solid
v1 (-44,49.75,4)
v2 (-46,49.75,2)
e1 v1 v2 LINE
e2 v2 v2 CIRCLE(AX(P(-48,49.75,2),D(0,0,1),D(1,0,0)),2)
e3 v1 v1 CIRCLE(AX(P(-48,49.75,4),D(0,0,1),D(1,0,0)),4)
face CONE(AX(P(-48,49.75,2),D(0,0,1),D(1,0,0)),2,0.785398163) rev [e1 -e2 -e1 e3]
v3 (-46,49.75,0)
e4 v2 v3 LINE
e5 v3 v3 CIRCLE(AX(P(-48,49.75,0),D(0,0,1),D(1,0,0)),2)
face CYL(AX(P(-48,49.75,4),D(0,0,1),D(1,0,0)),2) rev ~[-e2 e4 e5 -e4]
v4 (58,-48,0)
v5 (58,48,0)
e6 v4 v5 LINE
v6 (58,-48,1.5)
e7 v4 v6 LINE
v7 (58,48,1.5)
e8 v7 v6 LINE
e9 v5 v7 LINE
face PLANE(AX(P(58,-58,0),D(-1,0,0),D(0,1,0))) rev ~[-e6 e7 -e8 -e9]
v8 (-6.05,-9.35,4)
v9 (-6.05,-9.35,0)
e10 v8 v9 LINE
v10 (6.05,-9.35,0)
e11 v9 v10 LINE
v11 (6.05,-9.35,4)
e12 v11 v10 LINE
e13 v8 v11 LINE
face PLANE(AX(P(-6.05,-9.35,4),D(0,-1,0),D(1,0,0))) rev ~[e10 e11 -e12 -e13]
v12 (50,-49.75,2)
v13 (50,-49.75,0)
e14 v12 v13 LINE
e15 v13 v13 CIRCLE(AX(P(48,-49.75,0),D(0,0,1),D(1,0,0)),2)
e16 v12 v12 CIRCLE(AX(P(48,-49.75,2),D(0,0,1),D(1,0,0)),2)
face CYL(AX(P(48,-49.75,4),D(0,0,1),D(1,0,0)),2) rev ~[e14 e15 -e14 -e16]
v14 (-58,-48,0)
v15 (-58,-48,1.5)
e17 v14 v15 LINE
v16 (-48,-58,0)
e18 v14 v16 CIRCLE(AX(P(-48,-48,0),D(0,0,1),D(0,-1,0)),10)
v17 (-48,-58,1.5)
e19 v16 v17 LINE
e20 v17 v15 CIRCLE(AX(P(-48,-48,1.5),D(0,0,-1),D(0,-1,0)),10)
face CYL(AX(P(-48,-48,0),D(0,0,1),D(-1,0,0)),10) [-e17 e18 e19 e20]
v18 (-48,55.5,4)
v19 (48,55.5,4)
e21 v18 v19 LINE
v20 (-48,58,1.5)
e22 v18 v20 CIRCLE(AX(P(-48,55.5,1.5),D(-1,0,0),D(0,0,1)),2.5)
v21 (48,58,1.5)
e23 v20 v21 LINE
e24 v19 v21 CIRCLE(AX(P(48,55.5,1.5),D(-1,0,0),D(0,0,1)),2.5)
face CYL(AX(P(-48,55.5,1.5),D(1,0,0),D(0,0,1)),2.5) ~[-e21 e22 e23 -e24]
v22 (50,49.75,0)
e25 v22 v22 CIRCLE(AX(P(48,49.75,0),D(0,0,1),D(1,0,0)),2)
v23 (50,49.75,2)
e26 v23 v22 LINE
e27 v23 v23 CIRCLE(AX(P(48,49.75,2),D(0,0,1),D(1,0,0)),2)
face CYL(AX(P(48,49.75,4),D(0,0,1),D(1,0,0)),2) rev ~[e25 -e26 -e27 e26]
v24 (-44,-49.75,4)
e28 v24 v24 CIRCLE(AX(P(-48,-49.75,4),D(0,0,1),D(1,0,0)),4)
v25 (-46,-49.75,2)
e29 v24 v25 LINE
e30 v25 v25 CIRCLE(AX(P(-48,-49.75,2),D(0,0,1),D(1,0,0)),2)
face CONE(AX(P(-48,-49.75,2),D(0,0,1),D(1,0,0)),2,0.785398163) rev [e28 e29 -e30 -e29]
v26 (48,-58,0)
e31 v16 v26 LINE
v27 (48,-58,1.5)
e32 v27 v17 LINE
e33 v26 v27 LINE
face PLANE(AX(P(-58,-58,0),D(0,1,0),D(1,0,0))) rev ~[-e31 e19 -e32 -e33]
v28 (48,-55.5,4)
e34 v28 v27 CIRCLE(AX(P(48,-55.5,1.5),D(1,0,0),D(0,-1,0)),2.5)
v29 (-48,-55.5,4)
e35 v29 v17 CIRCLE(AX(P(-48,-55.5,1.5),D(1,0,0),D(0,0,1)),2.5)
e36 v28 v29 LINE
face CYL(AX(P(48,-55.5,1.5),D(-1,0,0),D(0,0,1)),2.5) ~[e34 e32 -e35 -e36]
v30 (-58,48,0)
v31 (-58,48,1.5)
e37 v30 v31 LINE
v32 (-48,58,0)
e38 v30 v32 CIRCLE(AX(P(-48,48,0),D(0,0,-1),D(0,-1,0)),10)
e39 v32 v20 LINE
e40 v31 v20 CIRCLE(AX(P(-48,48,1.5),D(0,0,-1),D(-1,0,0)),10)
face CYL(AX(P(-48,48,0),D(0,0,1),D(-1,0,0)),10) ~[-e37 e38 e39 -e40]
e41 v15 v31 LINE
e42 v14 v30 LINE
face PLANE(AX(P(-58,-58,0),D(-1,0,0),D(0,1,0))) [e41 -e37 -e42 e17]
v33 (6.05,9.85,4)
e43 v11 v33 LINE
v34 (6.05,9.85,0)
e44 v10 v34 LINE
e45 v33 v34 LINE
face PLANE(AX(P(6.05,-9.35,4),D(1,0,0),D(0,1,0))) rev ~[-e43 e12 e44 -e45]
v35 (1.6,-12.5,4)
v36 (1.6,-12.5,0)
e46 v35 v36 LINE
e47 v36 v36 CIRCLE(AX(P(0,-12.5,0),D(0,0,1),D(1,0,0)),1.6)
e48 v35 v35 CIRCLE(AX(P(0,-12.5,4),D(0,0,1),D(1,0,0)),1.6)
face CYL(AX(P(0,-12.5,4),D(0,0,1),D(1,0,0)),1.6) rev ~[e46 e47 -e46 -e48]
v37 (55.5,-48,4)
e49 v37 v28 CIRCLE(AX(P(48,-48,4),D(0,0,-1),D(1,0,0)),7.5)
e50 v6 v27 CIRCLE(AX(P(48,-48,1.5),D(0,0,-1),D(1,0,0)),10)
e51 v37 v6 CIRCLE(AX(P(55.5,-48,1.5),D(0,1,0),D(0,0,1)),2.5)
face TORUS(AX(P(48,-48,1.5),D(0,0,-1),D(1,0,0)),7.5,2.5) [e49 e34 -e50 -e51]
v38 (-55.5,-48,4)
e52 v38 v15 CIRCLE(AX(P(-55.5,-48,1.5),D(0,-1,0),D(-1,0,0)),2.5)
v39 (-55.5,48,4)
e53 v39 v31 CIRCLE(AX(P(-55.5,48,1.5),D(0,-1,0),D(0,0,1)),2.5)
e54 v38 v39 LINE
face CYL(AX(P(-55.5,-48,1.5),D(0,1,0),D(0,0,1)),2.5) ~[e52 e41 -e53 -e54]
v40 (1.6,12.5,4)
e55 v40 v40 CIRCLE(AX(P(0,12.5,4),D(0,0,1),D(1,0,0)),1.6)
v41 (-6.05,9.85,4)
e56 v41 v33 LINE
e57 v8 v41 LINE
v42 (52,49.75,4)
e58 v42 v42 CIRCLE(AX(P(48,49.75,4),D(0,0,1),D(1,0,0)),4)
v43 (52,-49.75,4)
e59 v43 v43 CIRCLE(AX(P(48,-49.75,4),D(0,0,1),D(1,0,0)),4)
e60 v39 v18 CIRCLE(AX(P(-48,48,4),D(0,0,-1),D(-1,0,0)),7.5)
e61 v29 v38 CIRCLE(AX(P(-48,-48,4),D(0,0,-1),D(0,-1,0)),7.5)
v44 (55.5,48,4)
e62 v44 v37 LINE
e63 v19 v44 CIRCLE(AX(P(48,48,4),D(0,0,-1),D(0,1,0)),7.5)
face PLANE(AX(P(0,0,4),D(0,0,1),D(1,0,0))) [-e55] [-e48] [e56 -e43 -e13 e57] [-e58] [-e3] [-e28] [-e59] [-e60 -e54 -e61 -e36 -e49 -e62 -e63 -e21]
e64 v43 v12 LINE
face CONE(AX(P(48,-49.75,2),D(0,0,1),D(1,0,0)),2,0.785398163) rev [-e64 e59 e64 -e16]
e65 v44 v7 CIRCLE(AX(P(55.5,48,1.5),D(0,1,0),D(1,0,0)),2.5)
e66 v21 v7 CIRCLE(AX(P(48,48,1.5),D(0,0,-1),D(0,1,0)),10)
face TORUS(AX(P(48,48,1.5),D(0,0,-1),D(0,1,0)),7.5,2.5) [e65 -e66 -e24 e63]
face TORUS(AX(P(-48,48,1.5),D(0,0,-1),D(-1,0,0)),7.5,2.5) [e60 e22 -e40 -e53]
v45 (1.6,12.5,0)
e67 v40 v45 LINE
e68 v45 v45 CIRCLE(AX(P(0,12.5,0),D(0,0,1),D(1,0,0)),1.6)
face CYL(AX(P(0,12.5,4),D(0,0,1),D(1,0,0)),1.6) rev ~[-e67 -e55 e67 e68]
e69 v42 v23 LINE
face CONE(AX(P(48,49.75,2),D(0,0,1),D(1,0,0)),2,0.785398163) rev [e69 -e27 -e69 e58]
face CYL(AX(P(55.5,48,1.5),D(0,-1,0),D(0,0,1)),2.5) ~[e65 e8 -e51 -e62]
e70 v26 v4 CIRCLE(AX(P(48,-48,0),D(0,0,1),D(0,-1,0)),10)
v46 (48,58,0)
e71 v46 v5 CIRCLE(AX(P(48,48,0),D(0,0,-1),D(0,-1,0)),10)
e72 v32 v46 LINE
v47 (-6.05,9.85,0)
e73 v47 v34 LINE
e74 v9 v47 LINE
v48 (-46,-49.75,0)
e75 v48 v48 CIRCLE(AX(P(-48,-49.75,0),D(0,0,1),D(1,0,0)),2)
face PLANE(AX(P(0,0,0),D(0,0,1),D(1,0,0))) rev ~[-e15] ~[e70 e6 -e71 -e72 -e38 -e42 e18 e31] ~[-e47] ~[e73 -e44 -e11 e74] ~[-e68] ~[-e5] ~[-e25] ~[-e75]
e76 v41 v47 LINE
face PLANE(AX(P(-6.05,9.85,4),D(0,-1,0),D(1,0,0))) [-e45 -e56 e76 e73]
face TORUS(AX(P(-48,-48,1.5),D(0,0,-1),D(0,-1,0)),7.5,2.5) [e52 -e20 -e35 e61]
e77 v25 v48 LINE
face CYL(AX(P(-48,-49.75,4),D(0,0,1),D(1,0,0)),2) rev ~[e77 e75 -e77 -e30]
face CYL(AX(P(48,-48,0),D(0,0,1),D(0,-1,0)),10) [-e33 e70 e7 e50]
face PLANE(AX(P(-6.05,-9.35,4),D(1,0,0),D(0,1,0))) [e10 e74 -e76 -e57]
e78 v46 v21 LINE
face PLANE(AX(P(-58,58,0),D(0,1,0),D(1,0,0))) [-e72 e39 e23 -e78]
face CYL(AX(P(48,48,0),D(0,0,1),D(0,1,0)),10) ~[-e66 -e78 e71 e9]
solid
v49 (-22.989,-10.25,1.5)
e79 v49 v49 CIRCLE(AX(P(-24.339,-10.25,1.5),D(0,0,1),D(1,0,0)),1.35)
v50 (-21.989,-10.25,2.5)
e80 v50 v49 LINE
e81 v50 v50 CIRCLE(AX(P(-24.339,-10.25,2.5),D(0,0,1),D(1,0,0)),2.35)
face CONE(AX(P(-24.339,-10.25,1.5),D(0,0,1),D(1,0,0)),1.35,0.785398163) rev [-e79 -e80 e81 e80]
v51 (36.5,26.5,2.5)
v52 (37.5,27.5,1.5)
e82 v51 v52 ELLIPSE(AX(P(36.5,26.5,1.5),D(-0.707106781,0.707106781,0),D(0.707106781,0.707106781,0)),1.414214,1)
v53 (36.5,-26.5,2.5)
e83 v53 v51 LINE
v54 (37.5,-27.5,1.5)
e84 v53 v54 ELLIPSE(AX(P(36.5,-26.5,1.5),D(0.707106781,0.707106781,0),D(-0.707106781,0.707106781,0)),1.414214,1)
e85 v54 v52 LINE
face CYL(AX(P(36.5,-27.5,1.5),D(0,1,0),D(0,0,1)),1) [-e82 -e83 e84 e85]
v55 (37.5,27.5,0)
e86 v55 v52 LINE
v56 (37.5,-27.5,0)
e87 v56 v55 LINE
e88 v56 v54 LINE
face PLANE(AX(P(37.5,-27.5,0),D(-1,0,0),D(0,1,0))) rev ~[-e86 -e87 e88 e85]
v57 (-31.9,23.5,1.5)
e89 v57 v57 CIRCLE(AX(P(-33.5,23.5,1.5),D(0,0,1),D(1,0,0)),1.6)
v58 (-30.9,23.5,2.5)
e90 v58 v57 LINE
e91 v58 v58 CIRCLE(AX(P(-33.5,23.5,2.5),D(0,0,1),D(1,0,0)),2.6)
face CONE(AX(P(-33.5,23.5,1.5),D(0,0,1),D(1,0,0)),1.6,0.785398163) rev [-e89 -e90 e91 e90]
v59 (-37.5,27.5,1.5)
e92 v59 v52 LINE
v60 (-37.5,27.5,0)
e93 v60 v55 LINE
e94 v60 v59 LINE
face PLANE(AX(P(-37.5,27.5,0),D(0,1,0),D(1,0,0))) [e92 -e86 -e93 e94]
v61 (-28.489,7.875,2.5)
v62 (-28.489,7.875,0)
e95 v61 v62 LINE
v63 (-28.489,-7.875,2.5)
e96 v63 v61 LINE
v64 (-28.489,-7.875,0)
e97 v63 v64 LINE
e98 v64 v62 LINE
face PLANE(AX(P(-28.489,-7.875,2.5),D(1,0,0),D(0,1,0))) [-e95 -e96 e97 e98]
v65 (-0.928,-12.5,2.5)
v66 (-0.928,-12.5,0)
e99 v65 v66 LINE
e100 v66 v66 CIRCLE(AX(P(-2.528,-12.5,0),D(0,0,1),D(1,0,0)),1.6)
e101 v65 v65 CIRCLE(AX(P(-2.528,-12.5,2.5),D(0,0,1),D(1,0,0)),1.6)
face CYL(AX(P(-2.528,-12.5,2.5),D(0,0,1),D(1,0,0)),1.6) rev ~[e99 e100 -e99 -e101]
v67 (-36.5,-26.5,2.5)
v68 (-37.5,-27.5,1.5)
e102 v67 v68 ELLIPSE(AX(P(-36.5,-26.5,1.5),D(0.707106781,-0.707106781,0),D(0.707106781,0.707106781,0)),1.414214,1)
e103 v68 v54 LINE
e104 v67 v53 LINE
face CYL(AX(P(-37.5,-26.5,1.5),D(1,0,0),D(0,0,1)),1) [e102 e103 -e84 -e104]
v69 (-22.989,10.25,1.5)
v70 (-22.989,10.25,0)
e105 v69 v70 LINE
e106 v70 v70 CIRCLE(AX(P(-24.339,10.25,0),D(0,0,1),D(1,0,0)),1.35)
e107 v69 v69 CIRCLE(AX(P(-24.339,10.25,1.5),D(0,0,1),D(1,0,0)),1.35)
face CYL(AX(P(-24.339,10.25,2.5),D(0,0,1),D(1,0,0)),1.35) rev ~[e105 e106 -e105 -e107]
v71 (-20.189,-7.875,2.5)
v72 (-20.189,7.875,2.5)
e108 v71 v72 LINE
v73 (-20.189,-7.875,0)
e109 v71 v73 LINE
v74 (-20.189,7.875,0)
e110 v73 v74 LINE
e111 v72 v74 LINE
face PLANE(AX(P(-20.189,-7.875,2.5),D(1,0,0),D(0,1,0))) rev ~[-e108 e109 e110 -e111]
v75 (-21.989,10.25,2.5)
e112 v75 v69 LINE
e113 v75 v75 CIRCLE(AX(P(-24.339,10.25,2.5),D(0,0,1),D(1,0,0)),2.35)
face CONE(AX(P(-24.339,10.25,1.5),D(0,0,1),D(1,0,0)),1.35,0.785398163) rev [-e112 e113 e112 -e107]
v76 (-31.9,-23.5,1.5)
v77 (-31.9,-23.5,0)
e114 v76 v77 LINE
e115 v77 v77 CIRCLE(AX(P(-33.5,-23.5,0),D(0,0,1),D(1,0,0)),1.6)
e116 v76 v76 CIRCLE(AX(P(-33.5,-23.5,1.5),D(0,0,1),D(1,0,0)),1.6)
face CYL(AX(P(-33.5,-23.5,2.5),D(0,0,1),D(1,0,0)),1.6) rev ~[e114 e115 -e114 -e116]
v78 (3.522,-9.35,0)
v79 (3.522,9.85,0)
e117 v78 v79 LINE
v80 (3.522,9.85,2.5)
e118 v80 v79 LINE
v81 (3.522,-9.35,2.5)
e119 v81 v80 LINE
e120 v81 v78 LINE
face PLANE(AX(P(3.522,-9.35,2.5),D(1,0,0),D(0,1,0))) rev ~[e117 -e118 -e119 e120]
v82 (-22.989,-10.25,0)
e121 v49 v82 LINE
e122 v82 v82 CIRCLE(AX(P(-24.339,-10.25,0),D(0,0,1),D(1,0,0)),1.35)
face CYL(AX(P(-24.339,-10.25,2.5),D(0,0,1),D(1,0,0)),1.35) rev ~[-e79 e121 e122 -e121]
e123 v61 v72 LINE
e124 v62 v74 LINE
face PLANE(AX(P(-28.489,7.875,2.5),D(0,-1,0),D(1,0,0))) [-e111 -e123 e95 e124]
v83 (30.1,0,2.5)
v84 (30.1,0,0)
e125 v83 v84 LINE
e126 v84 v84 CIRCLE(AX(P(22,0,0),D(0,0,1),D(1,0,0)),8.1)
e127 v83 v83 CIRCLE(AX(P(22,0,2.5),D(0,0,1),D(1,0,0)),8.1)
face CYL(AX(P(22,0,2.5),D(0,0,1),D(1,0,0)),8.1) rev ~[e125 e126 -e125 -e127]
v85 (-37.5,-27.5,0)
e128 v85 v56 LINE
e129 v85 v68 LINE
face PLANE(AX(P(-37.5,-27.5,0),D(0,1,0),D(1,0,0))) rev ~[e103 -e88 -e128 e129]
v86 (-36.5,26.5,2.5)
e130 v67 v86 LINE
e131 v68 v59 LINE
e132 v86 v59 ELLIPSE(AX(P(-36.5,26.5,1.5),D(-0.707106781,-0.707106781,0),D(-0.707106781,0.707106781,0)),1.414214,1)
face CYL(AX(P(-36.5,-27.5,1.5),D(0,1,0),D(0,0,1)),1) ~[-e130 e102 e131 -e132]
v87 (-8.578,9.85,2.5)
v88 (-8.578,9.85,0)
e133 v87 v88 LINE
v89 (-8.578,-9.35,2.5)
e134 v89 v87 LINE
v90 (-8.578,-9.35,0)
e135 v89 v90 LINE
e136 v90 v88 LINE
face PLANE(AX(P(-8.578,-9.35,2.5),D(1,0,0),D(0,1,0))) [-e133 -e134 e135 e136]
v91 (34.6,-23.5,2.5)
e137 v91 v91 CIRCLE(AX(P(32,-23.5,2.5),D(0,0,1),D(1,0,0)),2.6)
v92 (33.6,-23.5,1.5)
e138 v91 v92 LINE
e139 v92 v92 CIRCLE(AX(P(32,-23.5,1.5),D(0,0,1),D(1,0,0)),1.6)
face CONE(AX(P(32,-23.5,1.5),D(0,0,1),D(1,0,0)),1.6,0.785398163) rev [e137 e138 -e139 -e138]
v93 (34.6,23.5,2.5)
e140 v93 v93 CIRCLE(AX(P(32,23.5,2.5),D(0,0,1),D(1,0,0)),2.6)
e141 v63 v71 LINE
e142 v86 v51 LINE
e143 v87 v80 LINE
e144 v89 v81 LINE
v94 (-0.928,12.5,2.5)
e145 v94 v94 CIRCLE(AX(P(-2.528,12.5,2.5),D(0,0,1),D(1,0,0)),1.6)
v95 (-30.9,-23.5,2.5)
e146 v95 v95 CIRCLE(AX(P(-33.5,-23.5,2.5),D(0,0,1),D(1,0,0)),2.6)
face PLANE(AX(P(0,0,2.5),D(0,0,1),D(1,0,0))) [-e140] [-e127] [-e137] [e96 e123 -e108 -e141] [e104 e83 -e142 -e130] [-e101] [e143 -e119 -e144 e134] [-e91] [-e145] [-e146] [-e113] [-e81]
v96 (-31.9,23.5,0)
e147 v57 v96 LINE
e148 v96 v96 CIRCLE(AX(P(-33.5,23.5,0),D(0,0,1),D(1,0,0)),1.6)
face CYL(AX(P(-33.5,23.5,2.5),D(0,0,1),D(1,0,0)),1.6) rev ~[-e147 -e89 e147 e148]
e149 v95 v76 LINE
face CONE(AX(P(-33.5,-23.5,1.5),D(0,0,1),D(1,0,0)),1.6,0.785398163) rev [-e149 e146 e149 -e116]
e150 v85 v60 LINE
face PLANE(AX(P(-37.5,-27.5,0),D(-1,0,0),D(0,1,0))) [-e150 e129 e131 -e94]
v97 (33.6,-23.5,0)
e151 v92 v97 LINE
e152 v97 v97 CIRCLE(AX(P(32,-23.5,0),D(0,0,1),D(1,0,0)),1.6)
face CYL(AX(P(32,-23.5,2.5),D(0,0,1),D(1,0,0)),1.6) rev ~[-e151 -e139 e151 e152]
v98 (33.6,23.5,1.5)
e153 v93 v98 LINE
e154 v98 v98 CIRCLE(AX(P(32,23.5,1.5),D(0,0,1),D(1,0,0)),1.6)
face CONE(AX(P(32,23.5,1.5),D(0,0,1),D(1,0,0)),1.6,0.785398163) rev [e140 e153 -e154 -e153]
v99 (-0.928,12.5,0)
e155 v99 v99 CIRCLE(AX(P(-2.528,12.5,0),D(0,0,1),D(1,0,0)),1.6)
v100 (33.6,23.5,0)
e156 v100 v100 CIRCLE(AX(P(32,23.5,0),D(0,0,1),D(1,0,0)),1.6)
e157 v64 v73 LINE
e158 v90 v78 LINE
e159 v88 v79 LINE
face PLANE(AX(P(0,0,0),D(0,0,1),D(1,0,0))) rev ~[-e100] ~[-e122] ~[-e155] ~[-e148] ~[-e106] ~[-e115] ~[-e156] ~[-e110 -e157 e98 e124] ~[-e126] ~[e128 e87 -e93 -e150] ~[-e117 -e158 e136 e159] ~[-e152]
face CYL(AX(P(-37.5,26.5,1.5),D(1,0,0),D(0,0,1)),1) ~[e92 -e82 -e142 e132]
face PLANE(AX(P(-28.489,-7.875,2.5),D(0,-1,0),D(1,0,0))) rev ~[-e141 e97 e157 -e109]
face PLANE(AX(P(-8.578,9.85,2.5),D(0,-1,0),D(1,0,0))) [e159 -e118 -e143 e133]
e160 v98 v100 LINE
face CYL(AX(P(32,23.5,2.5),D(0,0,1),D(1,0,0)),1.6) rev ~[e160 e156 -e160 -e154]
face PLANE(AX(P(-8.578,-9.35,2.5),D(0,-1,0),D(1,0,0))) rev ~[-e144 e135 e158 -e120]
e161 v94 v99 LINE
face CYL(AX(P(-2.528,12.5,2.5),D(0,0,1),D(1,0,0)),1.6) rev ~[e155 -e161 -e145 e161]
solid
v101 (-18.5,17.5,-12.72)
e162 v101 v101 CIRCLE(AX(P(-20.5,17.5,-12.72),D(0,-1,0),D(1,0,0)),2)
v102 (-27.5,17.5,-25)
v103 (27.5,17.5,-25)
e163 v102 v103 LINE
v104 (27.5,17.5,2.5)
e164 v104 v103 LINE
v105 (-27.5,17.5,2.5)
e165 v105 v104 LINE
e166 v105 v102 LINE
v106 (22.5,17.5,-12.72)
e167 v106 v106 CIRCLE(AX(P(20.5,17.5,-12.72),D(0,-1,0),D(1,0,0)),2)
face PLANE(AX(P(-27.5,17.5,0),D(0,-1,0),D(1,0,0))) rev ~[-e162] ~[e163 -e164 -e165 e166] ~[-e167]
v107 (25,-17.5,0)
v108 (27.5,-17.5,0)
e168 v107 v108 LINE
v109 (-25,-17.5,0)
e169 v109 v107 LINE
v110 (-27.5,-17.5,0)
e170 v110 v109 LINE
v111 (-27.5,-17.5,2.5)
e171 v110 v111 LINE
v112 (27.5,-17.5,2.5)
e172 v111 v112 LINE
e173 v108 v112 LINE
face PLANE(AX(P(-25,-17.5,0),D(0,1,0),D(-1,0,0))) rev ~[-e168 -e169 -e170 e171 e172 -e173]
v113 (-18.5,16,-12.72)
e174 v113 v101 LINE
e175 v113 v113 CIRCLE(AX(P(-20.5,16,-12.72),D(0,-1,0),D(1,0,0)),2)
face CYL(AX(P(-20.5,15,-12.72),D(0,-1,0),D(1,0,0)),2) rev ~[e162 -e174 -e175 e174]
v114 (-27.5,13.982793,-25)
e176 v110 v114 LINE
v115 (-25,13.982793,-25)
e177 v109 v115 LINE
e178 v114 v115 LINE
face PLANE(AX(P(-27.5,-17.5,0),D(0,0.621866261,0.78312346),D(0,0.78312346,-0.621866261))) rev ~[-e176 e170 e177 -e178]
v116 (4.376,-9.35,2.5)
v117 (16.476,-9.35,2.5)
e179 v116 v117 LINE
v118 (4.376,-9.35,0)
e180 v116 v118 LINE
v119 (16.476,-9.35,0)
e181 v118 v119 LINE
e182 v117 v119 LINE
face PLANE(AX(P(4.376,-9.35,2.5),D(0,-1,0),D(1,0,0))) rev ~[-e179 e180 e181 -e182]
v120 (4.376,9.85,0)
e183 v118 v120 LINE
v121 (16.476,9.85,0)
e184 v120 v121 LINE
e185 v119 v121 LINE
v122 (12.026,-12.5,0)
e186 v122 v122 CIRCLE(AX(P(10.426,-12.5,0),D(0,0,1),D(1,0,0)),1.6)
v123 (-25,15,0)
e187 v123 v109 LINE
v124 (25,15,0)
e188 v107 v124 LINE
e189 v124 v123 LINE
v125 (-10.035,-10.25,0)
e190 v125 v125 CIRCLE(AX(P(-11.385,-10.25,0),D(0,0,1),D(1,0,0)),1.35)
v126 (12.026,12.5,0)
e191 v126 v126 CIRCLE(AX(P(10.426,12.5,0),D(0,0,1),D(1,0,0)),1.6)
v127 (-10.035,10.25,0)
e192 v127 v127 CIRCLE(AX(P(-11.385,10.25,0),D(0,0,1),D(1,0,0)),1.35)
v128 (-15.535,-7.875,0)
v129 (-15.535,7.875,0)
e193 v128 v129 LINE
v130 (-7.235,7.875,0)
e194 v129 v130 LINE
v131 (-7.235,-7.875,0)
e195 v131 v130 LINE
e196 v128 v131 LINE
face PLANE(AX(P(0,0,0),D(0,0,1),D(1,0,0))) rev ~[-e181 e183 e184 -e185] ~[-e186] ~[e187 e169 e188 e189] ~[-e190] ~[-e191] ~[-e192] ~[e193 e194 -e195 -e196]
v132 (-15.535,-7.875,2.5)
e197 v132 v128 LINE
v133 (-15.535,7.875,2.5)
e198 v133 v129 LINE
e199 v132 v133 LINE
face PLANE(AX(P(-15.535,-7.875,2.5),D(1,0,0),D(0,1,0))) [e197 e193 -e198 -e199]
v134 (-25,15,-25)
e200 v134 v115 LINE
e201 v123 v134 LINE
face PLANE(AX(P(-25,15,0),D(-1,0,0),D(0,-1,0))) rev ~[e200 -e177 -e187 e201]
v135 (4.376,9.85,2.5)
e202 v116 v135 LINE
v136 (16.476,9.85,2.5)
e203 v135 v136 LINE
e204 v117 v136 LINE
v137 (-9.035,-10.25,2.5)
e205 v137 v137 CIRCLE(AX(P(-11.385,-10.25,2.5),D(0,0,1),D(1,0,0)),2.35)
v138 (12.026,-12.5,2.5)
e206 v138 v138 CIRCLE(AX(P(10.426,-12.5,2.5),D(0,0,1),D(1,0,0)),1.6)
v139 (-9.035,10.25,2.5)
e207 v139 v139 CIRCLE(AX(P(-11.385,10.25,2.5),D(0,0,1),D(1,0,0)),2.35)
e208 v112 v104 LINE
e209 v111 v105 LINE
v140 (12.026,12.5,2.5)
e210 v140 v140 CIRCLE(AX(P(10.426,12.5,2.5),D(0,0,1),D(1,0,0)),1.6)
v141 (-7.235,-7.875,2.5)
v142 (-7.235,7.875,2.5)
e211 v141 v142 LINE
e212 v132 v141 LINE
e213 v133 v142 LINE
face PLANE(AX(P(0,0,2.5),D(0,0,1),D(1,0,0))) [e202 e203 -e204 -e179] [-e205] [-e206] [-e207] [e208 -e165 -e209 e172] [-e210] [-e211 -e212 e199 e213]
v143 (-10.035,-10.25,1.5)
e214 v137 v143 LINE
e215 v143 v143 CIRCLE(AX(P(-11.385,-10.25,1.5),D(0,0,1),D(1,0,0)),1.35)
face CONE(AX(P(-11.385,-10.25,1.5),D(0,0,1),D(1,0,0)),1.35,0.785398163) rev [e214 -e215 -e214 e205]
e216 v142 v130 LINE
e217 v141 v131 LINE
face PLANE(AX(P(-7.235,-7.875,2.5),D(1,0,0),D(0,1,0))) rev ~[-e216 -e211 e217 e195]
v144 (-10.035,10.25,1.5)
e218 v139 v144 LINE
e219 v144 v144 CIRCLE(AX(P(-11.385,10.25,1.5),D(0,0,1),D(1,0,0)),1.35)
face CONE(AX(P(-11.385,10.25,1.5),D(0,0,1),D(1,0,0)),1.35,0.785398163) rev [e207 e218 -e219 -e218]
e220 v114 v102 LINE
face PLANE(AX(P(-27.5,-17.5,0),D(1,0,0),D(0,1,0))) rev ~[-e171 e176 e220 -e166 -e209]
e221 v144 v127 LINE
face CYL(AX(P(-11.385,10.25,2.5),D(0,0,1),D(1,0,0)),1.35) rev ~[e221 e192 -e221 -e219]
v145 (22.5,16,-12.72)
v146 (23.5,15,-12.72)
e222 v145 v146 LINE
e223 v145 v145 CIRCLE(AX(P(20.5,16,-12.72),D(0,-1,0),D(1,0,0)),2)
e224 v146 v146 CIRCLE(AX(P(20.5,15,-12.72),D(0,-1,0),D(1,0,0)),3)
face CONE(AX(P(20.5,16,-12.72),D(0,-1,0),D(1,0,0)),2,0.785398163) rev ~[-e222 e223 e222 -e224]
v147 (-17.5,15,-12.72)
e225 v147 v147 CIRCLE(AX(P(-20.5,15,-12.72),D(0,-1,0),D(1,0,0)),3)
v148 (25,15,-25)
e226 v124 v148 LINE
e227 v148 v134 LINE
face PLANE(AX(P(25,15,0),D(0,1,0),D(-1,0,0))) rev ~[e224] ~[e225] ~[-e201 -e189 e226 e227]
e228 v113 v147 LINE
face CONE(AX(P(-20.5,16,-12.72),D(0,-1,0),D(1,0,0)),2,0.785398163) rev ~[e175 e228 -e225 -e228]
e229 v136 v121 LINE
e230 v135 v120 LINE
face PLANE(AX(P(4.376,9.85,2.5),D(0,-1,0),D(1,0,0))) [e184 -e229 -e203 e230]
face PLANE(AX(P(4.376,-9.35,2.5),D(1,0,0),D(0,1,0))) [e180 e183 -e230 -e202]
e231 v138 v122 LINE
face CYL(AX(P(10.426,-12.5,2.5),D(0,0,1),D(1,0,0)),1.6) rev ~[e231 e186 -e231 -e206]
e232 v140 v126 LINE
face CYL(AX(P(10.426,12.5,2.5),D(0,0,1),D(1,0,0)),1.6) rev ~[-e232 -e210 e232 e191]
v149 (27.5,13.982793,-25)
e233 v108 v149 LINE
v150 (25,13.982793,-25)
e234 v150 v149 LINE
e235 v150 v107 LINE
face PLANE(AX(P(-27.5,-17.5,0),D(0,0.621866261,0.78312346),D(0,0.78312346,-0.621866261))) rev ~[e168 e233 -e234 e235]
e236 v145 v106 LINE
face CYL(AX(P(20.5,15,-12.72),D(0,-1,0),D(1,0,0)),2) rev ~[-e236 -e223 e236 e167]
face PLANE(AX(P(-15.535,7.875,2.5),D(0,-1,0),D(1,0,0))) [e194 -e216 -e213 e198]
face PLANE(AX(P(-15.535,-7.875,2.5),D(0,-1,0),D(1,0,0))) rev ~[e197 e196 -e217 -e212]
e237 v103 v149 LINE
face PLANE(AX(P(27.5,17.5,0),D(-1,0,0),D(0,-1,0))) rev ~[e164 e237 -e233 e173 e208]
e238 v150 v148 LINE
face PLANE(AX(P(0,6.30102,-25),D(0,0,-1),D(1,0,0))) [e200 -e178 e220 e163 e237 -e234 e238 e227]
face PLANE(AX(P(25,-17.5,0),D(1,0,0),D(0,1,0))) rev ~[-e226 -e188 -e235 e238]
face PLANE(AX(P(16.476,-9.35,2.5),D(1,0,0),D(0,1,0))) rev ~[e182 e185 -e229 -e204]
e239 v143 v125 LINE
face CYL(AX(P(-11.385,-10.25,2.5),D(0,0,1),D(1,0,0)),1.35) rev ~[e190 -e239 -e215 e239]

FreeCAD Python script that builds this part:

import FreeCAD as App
import Part
import Sketcher
from FreeCAD import Vector
Q = App.Units.Quantity


def edges_at(feature, points):
    """Names of the edges that pass closest to the given points."""
    edges = feature.Shape.Edges
    near = lambda p: min(range(len(edges)), key=lambda i: edges[i].distToShape(Part.Vertex(*p))[0])
    return sorted({f"Edge{near(p) + 1}" for p in points})

doc = App.newDocument("Part")
body = doc.addObject("PartDesign::Body", "Body")

sketch1 = body.newObject("Sketcher::SketchObject", "Sketch")
sketch1.AttachmentSupport = (doc.getObject("XY_Plane"), [""])
sketch1.MapMode = "FlatFace"
sketch1.addGeometry(Part.LineSegment(Vector(-37.5, 27.5, 0), Vector(-37.5, -27.5, 0)), False)
sketch1.addGeometry(Part.LineSegment(Vector(-37.5, -27.5, 0), Vector(37.5, -27.5, 0)), False)
sketch1.addGeometry(Part.LineSegment(Vector(37.5, -27.5, 0), Vector(37.5, 27.5, 0)), False)
sketch1.addGeometry(Part.LineSegment(Vector(37.5, 27.5, 0), Vector(-37.5, 27.5, 0)), False)
sketch1.addConstraint(Sketcher.Constraint("Coincident", 0, 2, 1, 1))
sketch1.addConstraint(Sketcher.Constraint("Coincident", 1, 2, 2, 1))
sketch1.addConstraint(Sketcher.Constraint("Coincident", 2, 2, 3, 1))
sketch1.addConstraint(Sketcher.Constraint("Coincident", 3, 2, 0, 1))
sketch1.addConstraint(Sketcher.Constraint("Vertical", 0))
sketch1.addConstraint(Sketcher.Constraint("Horizontal", 1))
sketch1.addConstraint(Sketcher.Constraint("Vertical", 2))
sketch1.addConstraint(Sketcher.Constraint("Horizontal", 3))
sketch1.addConstraint(Sketcher.Constraint("Symmetric", 0, 2, 2, 2, -1, 1))
sketch1.addConstraint(Sketcher.Constraint("DistanceX", 1, 1, 1, 2, Q("75 mm")))
sketch1.addConstraint(Sketcher.Constraint("DistanceY", 0, 2, 0, 1, Q("55 mm")))
pad1 = body.newObject("PartDesign::Pad", "Pad")
pad1.Profile = sketch1
pad1.Length = 2.5

sketch2 = body.newObject("Sketcher::SketchObject", "Sketch001")
sketch2.AttachmentSupport = (doc.getObject("XY_Plane"), [""])
sketch2.MapMode = "FlatFace"
sketch2.AttachmentOffset = App.Placement(Vector(0, 0, 2.5), App.Rotation())
sketch2.addGeometry(Part.Circle(Vector(22, 0, 0), Vector(0, 0, 1), 8.1), False)
sketch2.addGeometry(Part.Circle(Vector(-2.528, 12.5, 0), Vector(0, 0, 1), 1.6), False)
sketch2.addGeometry(Part.Circle(Vector(-2.528, -12.5, 0), Vector(0, 0, 1), 1.6), False)
sketch2.addGeometry(Part.Circle(Vector(-24.339, 10.25, 0), Vector(0, 0, 1), 1.35), False)
sketch2.addGeometry(Part.Circle(Vector(-24.339, -10.25, 0), Vector(0, 0, 1), 1.35), False)
sketch2.addGeometry(Part.Circle(Vector(-33.5, 23.5, 0), Vector(0, 0, 1), 1.6), False)
sketch2.addGeometry(Part.Circle(Vector(-33.5, -23.5, 0), Vector(0, 0, 1), 1.6), False)
sketch2.addGeometry(Part.Circle(Vector(32, 23.5, 0), Vector(0, 0, 1), 1.6), False)
sketch2.addGeometry(Part.Circle(Vector(32, -23.5, 0), Vector(0, 0, 1), 1.6), False)
sketch2.addGeometry(Part.LineSegment(Vector(-8.578, 9.85, 0), Vector(-8.578, -9.35, 0)), False)
sketch2.addGeometry(Part.LineSegment(Vector(-8.578, -9.35, 0), Vector(3.522, -9.35, 0)), False)
sketch2.addGeometry(Part.LineSegment(Vector(3.522, -9.35, 0), Vector(3.522, 9.85, 0)), False)
sketch2.addGeometry(Part.LineSegment(Vector(3.522, 9.85, 0), Vector(-8.578, 9.85, 0)), False)
sketch2.addGeometry(Part.LineSegment(Vector(-28.489, 7.875, 0), Vector(-28.489, -7.875, 0)), False)
sketch2.addGeometry(Part.LineSegment(Vector(-28.489, -7.875, 0), Vector(-20.189, -7.875, 0)), False)
sketch2.addGeometry(Part.LineSegment(Vector(-20.189, -7.875, 0), Vector(-20.189, 7.875, 0)), False)
sketch2.addGeometry(Part.LineSegment(Vector(-20.189, 7.875, 0), Vector(-28.489, 7.875, 0)), False)
sketch2.addConstraint(Sketcher.Constraint("Coincident", 9, 2, 10, 1))
sketch2.addConstraint(Sketcher.Constraint("Coincident", 10, 2, 11, 1))
sketch2.addConstraint(Sketcher.Constraint("Coincident", 11, 2, 12, 1))
sketch2.addConstraint(Sketcher.Constraint("Coincident", 12, 2, 9, 1))
sketch2.addConstraint(Sketcher.Constraint("Coincident", 13, 2, 14, 1))
sketch2.addConstraint(Sketcher.Constraint("Coincident", 14, 2, 15, 1))
sketch2.addConstraint(Sketcher.Constraint("Coincident", 15, 2, 16, 1))
sketch2.addConstraint(Sketcher.Constraint("Coincident", 16, 2, 13, 1))
sketch2.addConstraint(Sketcher.Constraint("Vertical", 9))
sketch2.addConstraint(Sketcher.Constraint("Horizontal", 10))
sketch2.addConstraint(Sketcher.Constraint("Vertical", 11))
sketch2.addConstraint(Sketcher.Constraint("Horizontal", 12))
sketch2.addConstraint(Sketcher.Constraint("Vertical", 13))
sketch2.addConstraint(Sketcher.Constraint("Horizontal", 14))
sketch2.addConstraint(Sketcher.Constraint("Vertical", 15))
sketch2.addConstraint(Sketcher.Constraint("Horizontal", 16))
sketch2.addConstraint(Sketcher.Constraint("Equal", 1, 2))
sketch2.addConstraint(Sketcher.Constraint("Equal", 3, 4))
sketch2.addConstraint(Sketcher.Constraint("Equal", 2, 5))
sketch2.addConstraint(Sketcher.Constraint("Equal", 5, 6))
sketch2.addConstraint(Sketcher.Constraint("Equal", 6, 7))
sketch2.addConstraint(Sketcher.Constraint("Equal", 7, 8))
sketch2.addConstraint(Sketcher.Constraint("Symmetric", 1, 3, 2, 3, -1))
sketch2.addConstraint(Sketcher.Constraint("Symmetric", 3, 3, 4, 3, -1))
sketch2.addConstraint(Sketcher.Constraint("Symmetric", 5, 3, 6, 3, -1))
sketch2.addConstraint(Sketcher.Constraint("Symmetric", 7, 3, 8, 3, -1))
sketch2.addConstraint(Sketcher.Constraint("PointOnObject", 0, 3, -1))
sketch2.addConstraint(Sketcher.Constraint("Horizontal", 5, 3, 7, 3))
sketch2.addConstraint(Sketcher.Constraint("Diameter", 0, Q("16.2 mm")))
sketch2.addConstraint(Sketcher.Constraint("Diameter", 1, Q("3.2 mm")))
sketch2.addConstraint(Sketcher.Constraint("Diameter", 3, Q("2.7 mm")))
sketch2.addConstraint(Sketcher.Constraint("DistanceX", 10, 1, 10, 2, Q("12.1 mm")))
sketch2.addConstraint(Sketcher.Constraint("DistanceX", 14, 1, 14, 2, Q("8.3 mm")))
sketch2.addConstraint(Sketcher.Constraint("DistanceY", 9, 2, 9, 1, Q("19.2 mm")))
sketch2.addConstraint(Sketcher.Constraint("DistanceX", -1, 1, 0, 3, Q("22 mm")))
sketch2.addConstraint(Sketcher.Constraint("DistanceX", -1, 1, 7, 3, Q("32 mm")))
sketch2.addConstraint(Sketcher.Constraint("DistanceY", 2, 3, 1, 3, Q("25 mm")))
sketch2.addConstraint(Sketcher.Constraint("DistanceY", 1, 3, 5, 3, Q("11 mm")))
sketch2.addConstraint(Sketcher.Constraint("DistanceY", 13, 2, 13, 1, Q("15.75 mm")))
sketch2.addConstraint(Sketcher.Constraint("DistanceX", 5, 3, -1, 1, Q("33.5 mm")))
sketch2.addConstraint(Sketcher.Constraint("DistanceY", 4, 3, 3, 3, Q("20.5 mm")))
sketch2.addConstraint(Sketcher.Constraint("DistanceY", 4, 3, 9, 2, Q("0.9 mm")))
sketch2.addConstraint(Sketcher.Constraint("DistanceX", 9, 2, 2, 3, Q("6.05 mm")))
sketch2.addConstraint(Sketcher.Constraint("DistanceX", 13, 2, 4, 3, Q("4.15 mm")))
sketch2.addConstraint(Sketcher.Constraint("DistanceX", 1, 3, -1, 1, Q("2.528 mm")))
sketch2.addConstraint(Sketcher.Constraint("DistanceX", 3, 3, -1, 1, Q("24.339 mm")))
sketch2.addConstraint(Sketcher.Constraint("DistanceY", 13, 2, -1, 1, Q("7.875 mm")))
pocket1 = body.newObject("PartDesign::Pocket", "Pocket")
pocket1.Profile = sketch2
pocket1.Type = "ThroughAll"
doc.recompute()

chamfer = body.newObject("PartDesign::Chamfer", "Chamfer")
chamfer.Base = (pocket1, edges_at(pocket1, [
    (-35.1, 23.5, 2.5),
    (30.4, 23.5, 2.5),
    (-35.1, -23.5, 2.5),
    (30.4, -23.5, 2.5),
    (-25.689, 10.25, 2.5),
    (-25.689, -10.25, 2.5),
]))
chamfer.Size = 1
doc.recompute()

fillet = body.newObject("PartDesign::Fillet", "Fillet")
fillet.Base = (chamfer, edges_at(chamfer, [
    (-37.5, 0, 2.5),
    (0, 27.5, 2.5),
    (37.5, 0, 2.5),
    (0, -27.5, 2.5),
]))
fillet.Radius = 1
body2 = doc.addObject("PartDesign::Body", "Body001")

sketch3 = body2.newObject("Sketcher::SketchObject", "Sketch002")
sketch3.AttachmentSupport = (doc.getObject("XY_Plane001"), [""])
sketch3.MapMode = "FlatFace"
sketch3.addGeometry(Part.LineSegment(Vector(-27.5, 17.5, 0), Vector(-27.5, -17.5, 0)), False)
sketch3.addGeometry(Part.LineSegment(Vector(-27.5, -17.5, 0), Vector(27.5, -17.5, 0)), False)
sketch3.addGeometry(Part.LineSegment(Vector(27.5, -17.5, 0), Vector(27.5, 17.5, 0)), False)
sketch3.addGeometry(Part.LineSegment(Vector(27.5, 17.5, 0), Vector(-27.5, 17.5, 0)), False)
sketch3.addConstraint(Sketcher.Constraint("Coincident", 0, 2, 1, 1))
sketch3.addConstraint(Sketcher.Constraint("Coincident", 1, 2, 2, 1))
sketch3.addConstraint(Sketcher.Constraint("Coincident", 2, 2, 3, 1))
sketch3.addConstraint(Sketcher.Constraint("Coincident", 3, 2, 0, 1))
sketch3.addConstraint(Sketcher.Constraint("Vertical", 0))
sketch3.addConstraint(Sketcher.Constraint("Horizontal", 1))
sketch3.addConstraint(Sketcher.Constraint("Vertical", 2))
sketch3.addConstraint(Sketcher.Constraint("Horizontal", 3))
sketch3.addConstraint(Sketcher.Constraint("Symmetric", 0, 2, 2, 2, -1, 1))
sketch3.addConstraint(Sketcher.Constraint("DistanceX", 1, 1, 1, 2, Q("55 mm")))
sketch3.addConstraint(Sketcher.Constraint("DistanceY", 0, 2, 0, 1, Q("35 mm")))
pad2 = body2.newObject("PartDesign::Pad", "Pad001")
pad2.Profile = sketch3
pad2.Length = 2.5

sketch4 = body2.newObject("Sketcher::SketchObject", "Sketch003")
sketch4.AttachmentSupport = (doc.getObject("XY_Plane001"), [""])
sketch4.MapMode = "FlatFace"
sketch4.AttachmentOffset = App.Placement(Vector(0, 0, 2.5), App.Rotation())
sketch4.addGeometry(Part.Circle(Vector(10.426, 12.5, 0), Vector(0, 0, 1), 1.6), False)
sketch4.addGeometry(Part.Circle(Vector(10.426, -12.5, 0), Vector(0, 0, 1), 1.6), False)
sketch4.addGeometry(Part.Circle(Vector(-11.385, 10.25, 0), Vector(0, 0, 1), 1.35), False)
sketch4.addGeometry(Part.Circle(Vector(-11.385, -10.25, 0), Vector(0, 0, 1), 1.35), False)
sketch4.addGeometry(Part.LineSegment(Vector(4.376, 9.85, 0), Vector(4.376, -9.35, 0)), False)
sketch4.addGeometry(Part.LineSegment(Vector(4.376, -9.35, 0), Vector(16.476, -9.35, 0)), False)
sketch4.addGeometry(Part.LineSegment(Vector(16.476, -9.35, 0), Vector(16.476, 9.85, 0)), False)
sketch4.addGeometry(Part.LineSegment(Vector(16.476, 9.85, 0), Vector(4.376, 9.85, 0)), False)
sketch4.addGeometry(Part.LineSegment(Vector(-15.535, 7.875, 0), Vector(-15.535, -7.875, 0)), False)
sketch4.addGeometry(Part.LineSegment(Vector(-15.535, -7.875, 0), Vector(-7.235, -7.875, 0)), False)
sketch4.addGeometry(Part.LineSegment(Vector(-7.235, -7.875, 0), Vector(-7.235, 7.875, 0)), False)
sketch4.addGeometry(Part.LineSegment(Vector(-7.235, 7.875, 0), Vector(-15.535, 7.875, 0)), False)
sketch4.addConstraint(Sketcher.Constraint("Coincident", 4, 2, 5, 1))
sketch4.addConstraint(Sketcher.Constraint("Coincident", 5, 2, 6, 1))
sketch4.addConstraint(Sketcher.Constraint("Coincident", 6, 2, 7, 1))
sketch4.addConstraint(Sketcher.Constraint("Coincident", 7, 2, 4, 1))
sketch4.addConstraint(Sketcher.Constraint("Coincident", 8, 2, 9, 1))
sketch4.addConstraint(Sketcher.Constraint("Coincident", 9, 2, 10, 1))
sketch4.addConstraint(Sketcher.Constraint("Coincident", 10, 2, 11, 1))
sketch4.addConstraint(Sketcher.Constraint("Coincident", 11, 2, 8, 1))
sketch4.addConstraint(Sketcher.Constraint("Vertical", 4))
sketch4.addConstraint(Sketcher.Constraint("Horizontal", 5))
sketch4.addConstraint(Sketcher.Constraint("Vertical", 6))
sketch4.addConstraint(Sketcher.Constraint("Horizontal", 7))
sketch4.addConstraint(Sketcher.Constraint("Vertical", 8))
sketch4.addConstraint(Sketcher.Constraint("Horizontal", 9))
sketch4.addConstraint(Sketcher.Constraint("Vertical", 10))
sketch4.addConstraint(Sketcher.Constraint("Horizontal", 11))
sketch4.addConstraint(Sketcher.Constraint("Equal", 0, 1))
sketch4.addConstraint(Sketcher.Constraint("Equal", 2, 3))
sketch4.addConstraint(Sketcher.Constraint("Symmetric", 0, 3, 1, 3, -1))
sketch4.addConstraint(Sketcher.Constraint("Symmetric", 2, 3, 3, 3, -1))
sketch4.addConstraint(Sketcher.Constraint("Diameter", 0, Q("3.2 mm")))
sketch4.addConstraint(Sketcher.Constraint("Diameter", 2, Q("2.7 mm")))
sketch4.addConstraint(Sketcher.Constraint("DistanceX", 5, 1, 5, 2, Q("12.1 mm")))
sketch4.addConstraint(Sketcher.Constraint("DistanceX", 9, 1, 9, 2, Q("8.3 mm")))
sketch4.addConstraint(Sketcher.Constraint("DistanceY", 4, 2, 4, 1, Q("19.2 mm")))
sketch4.addConstraint(Sketcher.Constraint("DistanceY", 1, 3, 0, 3, Q("25 mm")))
sketch4.addConstraint(Sketcher.Constraint("DistanceY", 8, 2, 8, 1, Q("15.75 mm")))
sketch4.addConstraint(Sketcher.Constraint("DistanceY", 3, 3, 2, 3, Q("20.5 mm")))
sketch4.addConstraint(Sketcher.Constraint("DistanceY", 3, 3, 4, 2, Q("0.9 mm")))
sketch4.addConstraint(Sketcher.Constraint("DistanceX", 4, 2, 1, 3, Q("6.05 mm")))
sketch4.addConstraint(Sketcher.Constraint("DistanceX", 8, 2, 3, 3, Q("4.15 mm")))
sketch4.addConstraint(Sketcher.Constraint("DistanceX", -1, 1, 0, 3, Q("10.426 mm")))
sketch4.addConstraint(Sketcher.Constraint("DistanceX", 2, 3, -1, 1, Q("11.385 mm")))
sketch4.addConstraint(Sketcher.Constraint("DistanceY", 8, 2, -1, 1, Q("7.875 mm")))
pocket2 = body2.newObject("PartDesign::Pocket", "Pocket001")
pocket2.Profile = sketch4
pocket2.Type = "ThroughAll"
doc.recompute()

chamfer2 = body2.newObject("PartDesign::Chamfer", "Chamfer001")
chamfer2.Base = (pocket2, edges_at(pocket2, [(-12.735, 10.25, 2.5), (-12.735, -10.25, 2.5)]))
chamfer2.Size = 1

sketch5 = body2.newObject("Sketcher::SketchObject", "Sketch004")
sketch5.AttachmentSupport = (doc.getObject("XY_Plane001"), [""])
sketch5.MapMode = "FlatFace"
sketch5.addGeometry(Part.LineSegment(Vector(-27.5, -17.5, 0), Vector(-27.5, 17.5, 0)), False)
sketch5.addGeometry(Part.LineSegment(Vector(-27.5, 17.5, 0), Vector(27.5, 17.5, 0)), False)
sketch5.addGeometry(Part.LineSegment(Vector(27.5, 17.5, 0), Vector(27.5, -17.5, 0)), False)
sketch5.addGeometry(Part.LineSegment(Vector(27.5, -17.5, 0), Vector(25, -17.5, 0)), False)
sketch5.addGeometry(Part.LineSegment(Vector(25, -17.5, 0), Vector(25, 15, 0)), False)
sketch5.addGeometry(Part.LineSegment(Vector(25, 15, 0), Vector(-25, 15, 0)), False)
sketch5.addGeometry(Part.LineSegment(Vector(-25, 15, 0), Vector(-25, -17.5, 0)), False)
sketch5.addGeometry(Part.LineSegment(Vector(-25, -17.5, 0), Vector(-27.5, -17.5, 0)), False)
sketch5.addConstraint(Sketcher.Constraint("Coincident", 0, 2, 1, 1))
sketch5.addConstraint(Sketcher.Constraint("Coincident", 1, 2, 2, 1))
sketch5.addConstraint(Sketcher.Constraint("Coincident", 2, 2, 3, 1))
sketch5.addConstraint(Sketcher.Constraint("Coincident", 3, 2, 4, 1))
sketch5.addConstraint(Sketcher.Constraint("Coincident", 4, 2, 5, 1))
sketch5.addConstraint(Sketcher.Constraint("Coincident", 5, 2, 6, 1))
sketch5.addConstraint(Sketcher.Constraint("Coincident", 6, 2, 7, 1))
sketch5.addConstraint(Sketcher.Constraint("Coincident", 7, 2, 0, 1))
sketch5.addConstraint(Sketcher.Constraint("Vertical", 0))
sketch5.addConstraint(Sketcher.Constraint("Horizontal", 1))
sketch5.addConstraint(Sketcher.Constraint("Vertical", 2))
sketch5.addConstraint(Sketcher.Constraint("Horizontal", 3))
sketch5.addConstraint(Sketcher.Constraint("Vertical", 4))
sketch5.addConstraint(Sketcher.Constraint("Horizontal", 5))
sketch5.addConstraint(Sketcher.Constraint("Vertical", 6))
sketch5.addConstraint(Sketcher.Constraint("Horizontal", 7))
sketch5.addConstraint(Sketcher.Constraint("Symmetric", 0, 2, 2, 2, -1, 1))
sketch5.addConstraint(Sketcher.Constraint("Symmetric", 3, 2, 6, 2, -2))
sketch5.addConstraint(Sketcher.Constraint("DistanceX", 1, 1, 1, 2, Q("55 mm")))
sketch5.addConstraint(Sketcher.Constraint("DistanceX", 5, 2, 5, 1, Q("50 mm")))
sketch5.addConstraint(Sketcher.Constraint("DistanceY", 0, 1, 0, 2, Q("35 mm")))
sketch5.addConstraint(Sketcher.Constraint("DistanceY", 4, 1, 4, 2, Q("32.5 mm")))
pad3 = body2.newObject("PartDesign::Pad", "Pad002")
pad3.Profile = sketch5
pad3.Length = 25
pad3.Reversed = True

sketch6 = body2.newObject("Sketcher::SketchObject", "Sketch005")
sketch6.AttachmentSupport = (doc.getObject("YZ_Plane001"), [""])
sketch6.MapMode = "FlatFace"
sketch6.AttachmentOffset = App.Placement(Vector(0, 0, -27.5), App.Rotation())
sketch6.addGeometry(Part.LineSegment(Vector(-17.5, 0, 0), Vector(14.518, -25.425, 0)), False)
sketch6.addGeometry(Part.LineSegment(Vector(14.518, -25.425, 0), Vector(-18.872, -25.425, 0)), False)
sketch6.addGeometry(Part.LineSegment(Vector(-18.872, -25.425, 0), Vector(-18.872, 0, 0)), False)
sketch6.addGeometry(Part.LineSegment(Vector(-18.872, 0, 0), Vector(-17.5, 0, 0)), False)
sketch6.addConstraint(Sketcher.Constraint("Coincident", 0, 2, 1, 1))
sketch6.addConstraint(Sketcher.Constraint("Coincident", 1, 2, 2, 1))
sketch6.addConstraint(Sketcher.Constraint("Coincident", 2, 2, 3, 1))
sketch6.addConstraint(Sketcher.Constraint("Coincident", 3, 2, 0, 1))
sketch6.addConstraint(Sketcher.Constraint("Horizontal", 1))
sketch6.addConstraint(Sketcher.Constraint("Vertical", 2))
sketch6.addConstraint(Sketcher.Constraint("Horizontal", 3))
sketch6.addConstraint(Sketcher.Constraint("PointOnObject", 2, 2, -1))
sketch6.addConstraint(Sketcher.Constraint("DistanceX", 1, 2, 1, 1, Q("33.39 mm")))
sketch6.addConstraint(Sketcher.Constraint("DistanceX", 3, 2, -1, 1, Q("17.5 mm")))
sketch6.addConstraint(Sketcher.Constraint("DistanceX", 3, 1, 3, 2, Q("1.372 mm")))
sketch6.addConstraint(Sketcher.Constraint("DistanceY", 2, 1, 2, 2, Q("25.425 mm")))
pocket3 = body2.newObject("PartDesign::Pocket", "Pocket002")
pocket3.Profile = sketch6
pocket3.Type = "ThroughAll"
pocket3.Reversed = True

sketch7 = body2.newObject("Sketcher::SketchObject", "Sketch006")
sketch7.AttachmentSupport = (doc.getObject("XZ_Plane001"), [""])
sketch7.MapMode = "FlatFace"
sketch7.AttachmentOffset = App.Placement(Vector(0, 0, -15), App.Rotation())
sketch7.addGeometry(Part.Circle(Vector(-20.5, -12.72, 0), Vector(0, 0, 1), 2), False)
sketch7.addGeometry(Part.Circle(Vector(20.5, -12.72, 0), Vector(0, 0, 1), 2), False)
sketch7.addConstraint(Sketcher.Constraint("Equal", 0, 1))
sketch7.addConstraint(Sketcher.Constraint("Symmetric", 0, 3, 1, 3, -2))
sketch7.addConstraint(Sketcher.Constraint("Diameter", 0, Q("4 mm")))
sketch7.addConstraint(Sketcher.Constraint("DistanceX", 0, 3, 1, 3, Q("41 mm")))
sketch7.addConstraint(Sketcher.Constraint("DistanceY", 0, 3, -1, 1, Q("12.72 mm")))
pocket4 = body2.newObject("PartDesign::Pocket", "Pocket003")
pocket4.Profile = sketch7
pocket4.Type = "ThroughAll"
doc.recompute()

chamfer3 = body2.newObject("PartDesign::Chamfer", "Chamfer002")
chamfer3.Base = (pocket4, edges_at(pocket4, [(18.5, 15, -12.72), (-22.5, 15, -12.72)]))
chamfer3.Size = 1
body3 = doc.addObject("PartDesign::Body", "Body002")

sketch8 = body3.newObject("Sketcher::SketchObject", "Sketch007")
sketch8.AttachmentSupport = (doc.getObject("XY_Plane002"), [""])
sketch8.MapMode = "FlatFace"
sketch8.addGeometry(Part.LineSegment(Vector(-58, 58, 0), Vector(-58, -58, 0)), False)
sketch8.addGeometry(Part.LineSegment(Vector(-58, -58, 0), Vector(58, -58, 0)), False)
sketch8.addGeometry(Part.LineSegment(Vector(58, -58, 0), Vector(58, 58, 0)), False)
sketch8.addGeometry(Part.LineSegment(Vector(58, 58, 0), Vector(-58, 58, 0)), False)
sketch8.addConstraint(Sketcher.Constraint("Coincident", 0, 2, 1, 1))
sketch8.addConstraint(Sketcher.Constraint("Coincident", 1, 2, 2, 1))
sketch8.addConstraint(Sketcher.Constraint("Coincident", 2, 2, 3, 1))
sketch8.addConstraint(Sketcher.Constraint("Coincident", 3, 2, 0, 1))
sketch8.addConstraint(Sketcher.Constraint("Vertical", 0))
sketch8.addConstraint(Sketcher.Constraint("Horizontal", 1))
sketch8.addConstraint(Sketcher.Constraint("Vertical", 2))
sketch8.addConstraint(Sketcher.Constraint("Horizontal", 3))
sketch8.addConstraint(Sketcher.Constraint("Symmetric", 0, 2, 2, 2, -1, 1))
sketch8.addConstraint(Sketcher.Constraint("Equal", 3, 0))
sketch8.addConstraint(Sketcher.Constraint("DistanceX", 1, 1, 1, 2, Q("116 mm")))
pad4 = body3.newObject("PartDesign::Pad", "Pad003")
pad4.Profile = sketch8
pad4.Length = 4

sketch9 = body3.newObject("Sketcher::SketchObject", "Sketch008")
sketch9.AttachmentSupport = (doc.getObject("XY_Plane002"), [""])
sketch9.MapMode = "FlatFace"
sketch9.AttachmentOffset = App.Placement(Vector(0, 0, 4), App.Rotation())
sketch9.addGeometry(Part.Circle(Vector(0, 12.5, 0), Vector(0, 0, 1), 1.6), False)
sketch9.addGeometry(Part.Circle(Vector(0, -12.5, 0), Vector(0, 0, 1), 1.6), False)
sketch9.addGeometry(Part.Circle(Vector(-48, 49.75, 0), Vector(0, 0, 1), 2), False)
sketch9.addGeometry(Part.Circle(Vector(-48, -49.75, 0), Vector(0, 0, 1), 2), False)
sketch9.addGeometry(Part.Circle(Vector(48, 49.75, 0), Vector(0, 0, 1), 2), False)
sketch9.addGeometry(Part.Circle(Vector(48, -49.75, 0), Vector(0, 0, 1), 2), False)
sketch9.addGeometry(Part.LineSegment(Vector(-6.05, 9.85, 0), Vector(-6.05, -9.35, 0)), False)
sketch9.addGeometry(Part.LineSegment(Vector(-6.05, -9.35, 0), Vector(6.05, -9.35, 0)), False)
sketch9.addGeometry(Part.LineSegment(Vector(6.05, -9.35, 0), Vector(6.05, 9.85, 0)), False)
sketch9.addGeometry(Part.LineSegment(Vector(6.05, 9.85, 0), Vector(-6.05, 9.85, 0)), False)
sketch9.addConstraint(Sketcher.Constraint("Coincident", 6, 2, 7, 1))
sketch9.addConstraint(Sketcher.Constraint("Coincident", 7, 2, 8, 1))
sketch9.addConstraint(Sketcher.Constraint("Coincident", 8, 2, 9, 1))
sketch9.addConstraint(Sketcher.Constraint("Coincident", 9, 2, 6, 1))
sketch9.addConstraint(Sketcher.Constraint("Vertical", 6))
sketch9.addConstraint(Sketcher.Constraint("Horizontal", 7))
sketch9.addConstraint(Sketcher.Constraint("Vertical", 8))
sketch9.addConstraint(Sketcher.Constraint("Horizontal", 9))
sketch9.addConstraint(Sketcher.Constraint("Equal", 0, 1))
sketch9.addConstraint(Sketcher.Constraint("Equal", 2, 3))
sketch9.addConstraint(Sketcher.Constraint("Equal", 3, 4))
sketch9.addConstraint(Sketcher.Constraint("Equal", 4, 5))
sketch9.addConstraint(Sketcher.Constraint("Symmetric", 0, 3, 1, 3, -1, 1))
sketch9.addConstraint(Sketcher.Constraint("Symmetric", 3, 3, 4, 3, -1, 1))
sketch9.addConstraint(Sketcher.Constraint("Symmetric", 2, 3, 5, 3, -1, 1))
sketch9.addConstraint(Sketcher.Constraint("Symmetric", 2, 3, 4, 3, -2))
sketch9.addConstraint(Sketcher.Constraint("PointOnObject", 0, 3, -2))
sketch9.addConstraint(Sketcher.Constraint("Diameter", 2, Q("4 mm")))
sketch9.addConstraint(Sketcher.Constraint("Diameter", 0, Q("3.2 mm")))
sketch9.addConstraint(Sketcher.Constraint("DistanceX", 7, 1, 7, 2, Q("12.1 mm")))
sketch9.addConstraint(Sketcher.Constraint("DistanceY", 6, 2, 6, 1, Q("19.2 mm")))
sketch9.addConstraint(Sketcher.Constraint("DistanceX", 2, 3, -1, 1, Q("48 mm")))
sketch9.addConstraint(Sketcher.Constraint("DistanceY", 1, 3, 0, 3, Q("25 mm")))
sketch9.addConstraint(Sketcher.Constraint("DistanceY", 3, 3, 2, 3, Q("99.5 mm")))
sketch9.addConstraint(Sketcher.Constraint("DistanceY", 3, 3, 6, 2, Q("40.4 mm")))
sketch9.addConstraint(Sketcher.Constraint("DistanceX", 6, 2, -1, 1, Q("6.05 mm")))
pocket5 = body3.newObject("PartDesign::Pocket", "Pocket004")
pocket5.Profile = sketch9
pocket5.Type = "ThroughAll"
doc.recompute()

fillet2 = body3.newObject("PartDesign::Fillet", "Fillet001")
fillet2.Base = (pocket5, edges_at(pocket5, [
    (-58, -58, 2),
    (58, -58, 2),
    (58, 58, 2),
    (-58, 58, 2),
]))
fillet2.Radius = 10
doc.recompute()

chamfer4 = body3.newObject("PartDesign::Chamfer", "Chamfer003")
chamfer4.Base = (fillet2, edges_at(fillet2, [
    (46, -49.75, 4),
    (46, 49.75, 4),
    (-50, 49.75, 4),
    (-50, -49.75, 4),
]))
chamfer4.Size = 2
doc.recompute()

fillet3 = body3.newObject("PartDesign::Fillet", "Fillet002")
fillet3.Base = (chamfer4, edges_at(chamfer4, [
    (0, 58, 4),
    (55.071, 55.071, 4),
    (58, 0, 4),
    (55.071, -55.071, 4),
    (0, -58, 4),
    (-55.071, -55.071, 4),
    (-58, 0, 4),
    (-55.071, 55.071, 4),
]))
fillet3.Radius = 2.5

doc.recompute()
